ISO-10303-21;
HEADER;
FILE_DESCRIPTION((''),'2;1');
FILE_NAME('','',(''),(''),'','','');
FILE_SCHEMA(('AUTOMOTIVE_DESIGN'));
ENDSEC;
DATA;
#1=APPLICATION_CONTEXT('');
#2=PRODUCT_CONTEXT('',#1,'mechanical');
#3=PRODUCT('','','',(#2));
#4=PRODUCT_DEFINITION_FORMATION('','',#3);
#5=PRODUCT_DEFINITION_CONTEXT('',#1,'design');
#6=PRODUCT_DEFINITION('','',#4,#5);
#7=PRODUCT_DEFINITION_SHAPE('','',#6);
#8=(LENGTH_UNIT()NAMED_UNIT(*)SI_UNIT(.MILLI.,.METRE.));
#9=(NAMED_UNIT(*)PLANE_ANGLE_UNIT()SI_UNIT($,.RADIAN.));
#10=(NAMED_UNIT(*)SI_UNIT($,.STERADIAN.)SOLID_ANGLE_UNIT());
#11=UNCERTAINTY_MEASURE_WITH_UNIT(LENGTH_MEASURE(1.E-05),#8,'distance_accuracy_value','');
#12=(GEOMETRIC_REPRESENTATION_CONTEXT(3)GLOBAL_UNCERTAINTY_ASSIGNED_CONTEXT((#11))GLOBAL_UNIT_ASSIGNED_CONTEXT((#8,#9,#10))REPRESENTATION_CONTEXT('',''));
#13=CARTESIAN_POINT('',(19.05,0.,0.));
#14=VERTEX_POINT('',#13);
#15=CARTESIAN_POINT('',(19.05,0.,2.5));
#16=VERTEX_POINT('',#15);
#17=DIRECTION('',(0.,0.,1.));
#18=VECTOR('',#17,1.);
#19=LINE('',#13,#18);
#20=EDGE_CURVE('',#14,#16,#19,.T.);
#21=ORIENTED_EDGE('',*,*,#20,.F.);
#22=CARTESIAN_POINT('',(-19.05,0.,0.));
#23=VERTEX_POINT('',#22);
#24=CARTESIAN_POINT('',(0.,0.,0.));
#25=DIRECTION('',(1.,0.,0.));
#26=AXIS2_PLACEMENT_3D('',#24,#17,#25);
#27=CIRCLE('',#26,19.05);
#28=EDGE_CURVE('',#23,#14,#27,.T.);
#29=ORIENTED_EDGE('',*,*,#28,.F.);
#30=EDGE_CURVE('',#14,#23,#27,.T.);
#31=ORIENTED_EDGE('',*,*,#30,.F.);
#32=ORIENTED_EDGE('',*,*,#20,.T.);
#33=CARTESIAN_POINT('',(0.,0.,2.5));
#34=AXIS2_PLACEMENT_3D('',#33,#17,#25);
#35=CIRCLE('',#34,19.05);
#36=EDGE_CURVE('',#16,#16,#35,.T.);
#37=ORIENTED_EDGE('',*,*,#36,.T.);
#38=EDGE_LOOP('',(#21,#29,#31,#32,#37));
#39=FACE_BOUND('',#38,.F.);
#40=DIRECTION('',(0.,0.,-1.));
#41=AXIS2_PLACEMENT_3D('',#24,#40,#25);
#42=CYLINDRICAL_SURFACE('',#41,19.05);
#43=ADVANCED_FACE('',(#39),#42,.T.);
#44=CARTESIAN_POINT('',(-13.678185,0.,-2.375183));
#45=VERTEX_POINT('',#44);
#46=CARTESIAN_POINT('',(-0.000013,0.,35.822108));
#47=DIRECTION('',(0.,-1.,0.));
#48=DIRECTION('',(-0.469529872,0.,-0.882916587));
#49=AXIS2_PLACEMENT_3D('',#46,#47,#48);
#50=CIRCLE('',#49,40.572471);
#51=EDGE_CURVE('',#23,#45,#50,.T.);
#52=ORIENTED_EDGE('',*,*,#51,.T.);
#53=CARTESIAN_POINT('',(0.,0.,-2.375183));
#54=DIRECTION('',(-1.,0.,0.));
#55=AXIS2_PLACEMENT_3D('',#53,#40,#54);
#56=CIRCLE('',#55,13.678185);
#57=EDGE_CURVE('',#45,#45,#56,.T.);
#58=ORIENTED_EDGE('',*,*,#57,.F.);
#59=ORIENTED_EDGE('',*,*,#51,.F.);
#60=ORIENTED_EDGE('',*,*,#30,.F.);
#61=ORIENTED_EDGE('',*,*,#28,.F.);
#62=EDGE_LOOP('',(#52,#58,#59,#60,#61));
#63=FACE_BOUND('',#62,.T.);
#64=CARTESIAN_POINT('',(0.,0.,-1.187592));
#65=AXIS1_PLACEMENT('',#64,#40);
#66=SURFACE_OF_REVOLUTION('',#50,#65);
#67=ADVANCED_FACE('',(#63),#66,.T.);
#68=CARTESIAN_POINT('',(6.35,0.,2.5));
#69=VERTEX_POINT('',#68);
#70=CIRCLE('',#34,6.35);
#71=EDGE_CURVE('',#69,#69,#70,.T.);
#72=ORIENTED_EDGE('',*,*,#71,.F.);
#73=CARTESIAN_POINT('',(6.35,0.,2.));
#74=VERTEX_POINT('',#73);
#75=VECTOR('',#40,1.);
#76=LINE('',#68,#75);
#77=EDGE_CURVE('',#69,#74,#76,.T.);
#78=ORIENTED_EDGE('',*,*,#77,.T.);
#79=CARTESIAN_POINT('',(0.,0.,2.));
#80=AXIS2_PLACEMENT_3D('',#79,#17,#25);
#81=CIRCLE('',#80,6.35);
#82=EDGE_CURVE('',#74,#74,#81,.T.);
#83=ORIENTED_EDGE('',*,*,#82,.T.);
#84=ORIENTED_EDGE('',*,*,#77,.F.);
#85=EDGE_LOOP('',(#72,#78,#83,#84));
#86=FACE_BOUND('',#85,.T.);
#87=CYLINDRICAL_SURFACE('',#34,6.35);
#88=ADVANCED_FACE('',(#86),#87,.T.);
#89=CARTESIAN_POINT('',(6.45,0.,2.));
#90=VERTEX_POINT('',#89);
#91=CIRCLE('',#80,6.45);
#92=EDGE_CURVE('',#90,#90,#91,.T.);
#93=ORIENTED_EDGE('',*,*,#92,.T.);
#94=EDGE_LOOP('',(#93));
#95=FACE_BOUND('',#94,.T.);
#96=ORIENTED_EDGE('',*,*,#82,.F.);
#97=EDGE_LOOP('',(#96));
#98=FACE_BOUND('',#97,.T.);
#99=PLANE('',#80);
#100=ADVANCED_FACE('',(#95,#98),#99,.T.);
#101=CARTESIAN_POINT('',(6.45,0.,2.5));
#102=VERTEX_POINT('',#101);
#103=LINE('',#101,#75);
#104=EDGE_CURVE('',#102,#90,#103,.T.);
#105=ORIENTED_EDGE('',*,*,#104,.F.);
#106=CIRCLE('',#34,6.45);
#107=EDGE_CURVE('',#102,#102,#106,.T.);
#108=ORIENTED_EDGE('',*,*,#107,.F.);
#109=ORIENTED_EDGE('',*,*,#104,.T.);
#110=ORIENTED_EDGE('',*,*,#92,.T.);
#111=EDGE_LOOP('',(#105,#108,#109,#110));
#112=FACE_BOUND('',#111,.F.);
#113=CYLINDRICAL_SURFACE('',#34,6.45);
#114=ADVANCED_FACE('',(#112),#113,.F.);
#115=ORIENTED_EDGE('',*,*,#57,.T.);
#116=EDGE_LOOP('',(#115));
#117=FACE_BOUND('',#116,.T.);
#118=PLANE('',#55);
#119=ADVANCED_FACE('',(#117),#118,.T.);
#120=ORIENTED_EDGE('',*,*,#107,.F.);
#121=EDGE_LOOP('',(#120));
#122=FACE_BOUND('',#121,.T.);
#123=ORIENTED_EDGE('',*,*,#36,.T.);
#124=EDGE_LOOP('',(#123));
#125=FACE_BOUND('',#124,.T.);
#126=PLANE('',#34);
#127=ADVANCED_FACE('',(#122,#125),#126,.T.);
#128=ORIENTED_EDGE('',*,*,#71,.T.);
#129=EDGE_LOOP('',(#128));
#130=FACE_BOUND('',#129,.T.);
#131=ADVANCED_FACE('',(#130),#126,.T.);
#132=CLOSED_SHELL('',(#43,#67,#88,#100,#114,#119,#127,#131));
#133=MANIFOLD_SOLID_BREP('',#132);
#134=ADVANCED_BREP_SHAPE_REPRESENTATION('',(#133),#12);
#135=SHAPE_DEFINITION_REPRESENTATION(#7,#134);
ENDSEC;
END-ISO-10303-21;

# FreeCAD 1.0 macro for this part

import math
import FreeCAD as App
import Part
import Sketcher

doc = App.newDocument("Part")
params = doc.addObject("Spreadsheet::Sheet", "Params")
for row, (alias, value) in enumerate([
    ("sketch1_diameter", "38.1 mm"),
    ("pad1_length", "2.5 mm"),
    ("sketch2_diameter", "12.9 mm"),
    ("sketch2_diameter2", "12.7 mm"),
    ("pocket1_length", "0.5 mm"),
    ("sketch3_diameter", "12.9 mm"),
    ("sketch3_diameter2", "12.7 mm"),
    ("pocket2_length", "0.5 mm"),
    ("sketch4_width", "19.05 mm"),
    ("revolution_angle", "360 deg"),
], start=1):
    params.set(f"A{row}", alias)
    params.set(f"B{row}", "=" + value)
    params.setAlias(f"B{row}", alias)

body = doc.addObject("PartDesign::Body", "Body")

# Sketch on XY plane
sketch1 = doc.addObject("Sketcher::SketchObject", "Sketch")
body.addObject(sketch1)
sketch1.AttachmentSupport = (doc.XY_Plane, [""])
sketch1.MapMode = "FlatFace"
sketch1.addGeometry(Part.Circle(App.Vector(0, 0, 0), App.Vector(0, 0, 1), 19), False)
sketch1.addConstraint([
    Sketcher.Constraint("Coincident", 0, 3, -1, 1),
    Sketcher.Constraint("Diameter", 0, 38.1),
])
sketch1.setExpression("Constraints[1]", "Params.sketch1_diameter")
pad1 = doc.addObject("PartDesign::Pad", "Pad")
body.addObject(pad1)
pad1.Profile = sketch1
pad1.setExpression("Length", "Params.pad1_length")

# Sketch on XY plane
sketch2 = doc.addObject("Sketcher::SketchObject", "Sketch001")
body.addObject(sketch2)
sketch2.AttachmentSupport = (doc.XY_Plane, [""])
sketch2.MapMode = "FlatFace"
sketch2.AttachmentOffset = App.Placement(App.Vector(0, 0, 2.5), App.Rotation())
sketch2.addGeometry([
    Part.Circle(App.Vector(0, 0, 0), App.Vector(0, 0, 1), 6),
    Part.Circle(App.Vector(0, 0, 0), App.Vector(0, 0, 1), 6),
], False)
sketch2.addConstraint([
    Sketcher.Constraint("Coincident", 0, 3, -1, 1),
    Sketcher.Constraint("Coincident", 1, 3, -1, 1),
    Sketcher.Constraint("Diameter", 0, 12.9),
    Sketcher.Constraint("Diameter", 1, 12.7),
])
sketch2.setExpression("Constraints[2]", "Params.sketch2_diameter")
sketch2.setExpression("Constraints[3]", "Params.sketch2_diameter2")
pocket1 = doc.addObject("PartDesign::Pocket", "Pocket")
body.addObject(pocket1)
pocket1.Profile = sketch2
pocket1.setExpression("Length", "Params.pocket1_length")

# Sketch on XY plane
sketch3 = doc.addObject("Sketcher::SketchObject", "Sketch002")
body.addObject(sketch3)
sketch3.AttachmentSupport = (doc.XY_Plane, [""])
sketch3.MapMode = "FlatFace"
sketch3.AttachmentOffset = App.Placement(App.Vector(0, 0, 2.5), App.Rotation())
sketch3.addGeometry([
    Part.Circle(App.Vector(0, 0, 0), App.Vector(0, 0, 1), 6),
    Part.Circle(App.Vector(0, 0, 0), App.Vector(0, 0, 1), 6),
], False)
sketch3.addConstraint([
    Sketcher.Constraint("Coincident", 0, 3, -1, 1),
    Sketcher.Constraint("Coincident", 1, 3, -1, 1),
    Sketcher.Constraint("Diameter", 0, 12.9),
    Sketcher.Constraint("Diameter", 1, 12.7),
])
sketch3.setExpression("Constraints[2]", "Params.sketch3_diameter")
sketch3.setExpression("Constraints[3]", "Params.sketch3_diameter2")
pocket2 = doc.addObject("PartDesign::Pocket", "Pocket001")
body.addObject(pocket2)
pocket2.Profile = sketch3
pocket2.setExpression("Length", "Params.pocket2_length")

# Sketch on XZ plane
sketch4 = doc.addObject("Sketcher::SketchObject", "Sketch003")
body.addObject(sketch4)
sketch4.AttachmentSupport = (doc.XZ_Plane, [""])
sketch4.MapMode = "FlatFace"
sketch4.addGeometry([
    Part.LineSegment(App.Vector(0, -2.4, 0), App.Vector(0, 0, 0)),
    Part.LineSegment(App.Vector(0, 0, 0), App.Vector(-19.1, 0, 0)),
    Part.ArcOfCircle(Part.Circle(App.Vector(0, 35.8, 0), App.Vector(0, 0, 1), 40.6), math.radians(-118), math.radians(-109.7)),
    Part.LineSegment(App.Vector(-13.7, -2.4, 0), App.Vector(0, -2.4, 0)),
], False)
sketch4.addConstraint([
    Sketcher.Constraint("Coincident", 0, 2, 1, 1),
    Sketcher.Constraint("Coincident", 1, 2, 2, 1),
    Sketcher.Constraint("Coincident", 2, 2, 3, 1),
    Sketcher.Constraint("Coincident", 3, 2, 0, 1),
    Sketcher.Constraint("Vertical", 0),
    Sketcher.Constraint("Horizontal", 1),
    Sketcher.Constraint("Horizontal", 3),
    Sketcher.Constraint("Coincident", 0, 2, -1, 1),
    Sketcher.Constraint("DistanceX", 1, 2, 1, 1, 19.05),
    Sketcher.Constraint("Radius", 2, 40.572471),
    Sketcher.Constraint("DistanceX", 3, 1, 3, 2, 13.678185),
    Sketcher.Constraint("DistanceY", 0, 1, 0, 2, 2.375183),
])
sketch4.setExpression("Constraints[8]", "Params.sketch4_width")
revolution = doc.addObject("PartDesign::Revolution", "Revolution")
body.addObject(revolution)
revolution.Profile = sketch4
revolution.ReferenceAxis = (sketch4, ["V_Axis"])
revolution.setExpression("Angle", "Params.revolution_angle")

doc.recompute()
